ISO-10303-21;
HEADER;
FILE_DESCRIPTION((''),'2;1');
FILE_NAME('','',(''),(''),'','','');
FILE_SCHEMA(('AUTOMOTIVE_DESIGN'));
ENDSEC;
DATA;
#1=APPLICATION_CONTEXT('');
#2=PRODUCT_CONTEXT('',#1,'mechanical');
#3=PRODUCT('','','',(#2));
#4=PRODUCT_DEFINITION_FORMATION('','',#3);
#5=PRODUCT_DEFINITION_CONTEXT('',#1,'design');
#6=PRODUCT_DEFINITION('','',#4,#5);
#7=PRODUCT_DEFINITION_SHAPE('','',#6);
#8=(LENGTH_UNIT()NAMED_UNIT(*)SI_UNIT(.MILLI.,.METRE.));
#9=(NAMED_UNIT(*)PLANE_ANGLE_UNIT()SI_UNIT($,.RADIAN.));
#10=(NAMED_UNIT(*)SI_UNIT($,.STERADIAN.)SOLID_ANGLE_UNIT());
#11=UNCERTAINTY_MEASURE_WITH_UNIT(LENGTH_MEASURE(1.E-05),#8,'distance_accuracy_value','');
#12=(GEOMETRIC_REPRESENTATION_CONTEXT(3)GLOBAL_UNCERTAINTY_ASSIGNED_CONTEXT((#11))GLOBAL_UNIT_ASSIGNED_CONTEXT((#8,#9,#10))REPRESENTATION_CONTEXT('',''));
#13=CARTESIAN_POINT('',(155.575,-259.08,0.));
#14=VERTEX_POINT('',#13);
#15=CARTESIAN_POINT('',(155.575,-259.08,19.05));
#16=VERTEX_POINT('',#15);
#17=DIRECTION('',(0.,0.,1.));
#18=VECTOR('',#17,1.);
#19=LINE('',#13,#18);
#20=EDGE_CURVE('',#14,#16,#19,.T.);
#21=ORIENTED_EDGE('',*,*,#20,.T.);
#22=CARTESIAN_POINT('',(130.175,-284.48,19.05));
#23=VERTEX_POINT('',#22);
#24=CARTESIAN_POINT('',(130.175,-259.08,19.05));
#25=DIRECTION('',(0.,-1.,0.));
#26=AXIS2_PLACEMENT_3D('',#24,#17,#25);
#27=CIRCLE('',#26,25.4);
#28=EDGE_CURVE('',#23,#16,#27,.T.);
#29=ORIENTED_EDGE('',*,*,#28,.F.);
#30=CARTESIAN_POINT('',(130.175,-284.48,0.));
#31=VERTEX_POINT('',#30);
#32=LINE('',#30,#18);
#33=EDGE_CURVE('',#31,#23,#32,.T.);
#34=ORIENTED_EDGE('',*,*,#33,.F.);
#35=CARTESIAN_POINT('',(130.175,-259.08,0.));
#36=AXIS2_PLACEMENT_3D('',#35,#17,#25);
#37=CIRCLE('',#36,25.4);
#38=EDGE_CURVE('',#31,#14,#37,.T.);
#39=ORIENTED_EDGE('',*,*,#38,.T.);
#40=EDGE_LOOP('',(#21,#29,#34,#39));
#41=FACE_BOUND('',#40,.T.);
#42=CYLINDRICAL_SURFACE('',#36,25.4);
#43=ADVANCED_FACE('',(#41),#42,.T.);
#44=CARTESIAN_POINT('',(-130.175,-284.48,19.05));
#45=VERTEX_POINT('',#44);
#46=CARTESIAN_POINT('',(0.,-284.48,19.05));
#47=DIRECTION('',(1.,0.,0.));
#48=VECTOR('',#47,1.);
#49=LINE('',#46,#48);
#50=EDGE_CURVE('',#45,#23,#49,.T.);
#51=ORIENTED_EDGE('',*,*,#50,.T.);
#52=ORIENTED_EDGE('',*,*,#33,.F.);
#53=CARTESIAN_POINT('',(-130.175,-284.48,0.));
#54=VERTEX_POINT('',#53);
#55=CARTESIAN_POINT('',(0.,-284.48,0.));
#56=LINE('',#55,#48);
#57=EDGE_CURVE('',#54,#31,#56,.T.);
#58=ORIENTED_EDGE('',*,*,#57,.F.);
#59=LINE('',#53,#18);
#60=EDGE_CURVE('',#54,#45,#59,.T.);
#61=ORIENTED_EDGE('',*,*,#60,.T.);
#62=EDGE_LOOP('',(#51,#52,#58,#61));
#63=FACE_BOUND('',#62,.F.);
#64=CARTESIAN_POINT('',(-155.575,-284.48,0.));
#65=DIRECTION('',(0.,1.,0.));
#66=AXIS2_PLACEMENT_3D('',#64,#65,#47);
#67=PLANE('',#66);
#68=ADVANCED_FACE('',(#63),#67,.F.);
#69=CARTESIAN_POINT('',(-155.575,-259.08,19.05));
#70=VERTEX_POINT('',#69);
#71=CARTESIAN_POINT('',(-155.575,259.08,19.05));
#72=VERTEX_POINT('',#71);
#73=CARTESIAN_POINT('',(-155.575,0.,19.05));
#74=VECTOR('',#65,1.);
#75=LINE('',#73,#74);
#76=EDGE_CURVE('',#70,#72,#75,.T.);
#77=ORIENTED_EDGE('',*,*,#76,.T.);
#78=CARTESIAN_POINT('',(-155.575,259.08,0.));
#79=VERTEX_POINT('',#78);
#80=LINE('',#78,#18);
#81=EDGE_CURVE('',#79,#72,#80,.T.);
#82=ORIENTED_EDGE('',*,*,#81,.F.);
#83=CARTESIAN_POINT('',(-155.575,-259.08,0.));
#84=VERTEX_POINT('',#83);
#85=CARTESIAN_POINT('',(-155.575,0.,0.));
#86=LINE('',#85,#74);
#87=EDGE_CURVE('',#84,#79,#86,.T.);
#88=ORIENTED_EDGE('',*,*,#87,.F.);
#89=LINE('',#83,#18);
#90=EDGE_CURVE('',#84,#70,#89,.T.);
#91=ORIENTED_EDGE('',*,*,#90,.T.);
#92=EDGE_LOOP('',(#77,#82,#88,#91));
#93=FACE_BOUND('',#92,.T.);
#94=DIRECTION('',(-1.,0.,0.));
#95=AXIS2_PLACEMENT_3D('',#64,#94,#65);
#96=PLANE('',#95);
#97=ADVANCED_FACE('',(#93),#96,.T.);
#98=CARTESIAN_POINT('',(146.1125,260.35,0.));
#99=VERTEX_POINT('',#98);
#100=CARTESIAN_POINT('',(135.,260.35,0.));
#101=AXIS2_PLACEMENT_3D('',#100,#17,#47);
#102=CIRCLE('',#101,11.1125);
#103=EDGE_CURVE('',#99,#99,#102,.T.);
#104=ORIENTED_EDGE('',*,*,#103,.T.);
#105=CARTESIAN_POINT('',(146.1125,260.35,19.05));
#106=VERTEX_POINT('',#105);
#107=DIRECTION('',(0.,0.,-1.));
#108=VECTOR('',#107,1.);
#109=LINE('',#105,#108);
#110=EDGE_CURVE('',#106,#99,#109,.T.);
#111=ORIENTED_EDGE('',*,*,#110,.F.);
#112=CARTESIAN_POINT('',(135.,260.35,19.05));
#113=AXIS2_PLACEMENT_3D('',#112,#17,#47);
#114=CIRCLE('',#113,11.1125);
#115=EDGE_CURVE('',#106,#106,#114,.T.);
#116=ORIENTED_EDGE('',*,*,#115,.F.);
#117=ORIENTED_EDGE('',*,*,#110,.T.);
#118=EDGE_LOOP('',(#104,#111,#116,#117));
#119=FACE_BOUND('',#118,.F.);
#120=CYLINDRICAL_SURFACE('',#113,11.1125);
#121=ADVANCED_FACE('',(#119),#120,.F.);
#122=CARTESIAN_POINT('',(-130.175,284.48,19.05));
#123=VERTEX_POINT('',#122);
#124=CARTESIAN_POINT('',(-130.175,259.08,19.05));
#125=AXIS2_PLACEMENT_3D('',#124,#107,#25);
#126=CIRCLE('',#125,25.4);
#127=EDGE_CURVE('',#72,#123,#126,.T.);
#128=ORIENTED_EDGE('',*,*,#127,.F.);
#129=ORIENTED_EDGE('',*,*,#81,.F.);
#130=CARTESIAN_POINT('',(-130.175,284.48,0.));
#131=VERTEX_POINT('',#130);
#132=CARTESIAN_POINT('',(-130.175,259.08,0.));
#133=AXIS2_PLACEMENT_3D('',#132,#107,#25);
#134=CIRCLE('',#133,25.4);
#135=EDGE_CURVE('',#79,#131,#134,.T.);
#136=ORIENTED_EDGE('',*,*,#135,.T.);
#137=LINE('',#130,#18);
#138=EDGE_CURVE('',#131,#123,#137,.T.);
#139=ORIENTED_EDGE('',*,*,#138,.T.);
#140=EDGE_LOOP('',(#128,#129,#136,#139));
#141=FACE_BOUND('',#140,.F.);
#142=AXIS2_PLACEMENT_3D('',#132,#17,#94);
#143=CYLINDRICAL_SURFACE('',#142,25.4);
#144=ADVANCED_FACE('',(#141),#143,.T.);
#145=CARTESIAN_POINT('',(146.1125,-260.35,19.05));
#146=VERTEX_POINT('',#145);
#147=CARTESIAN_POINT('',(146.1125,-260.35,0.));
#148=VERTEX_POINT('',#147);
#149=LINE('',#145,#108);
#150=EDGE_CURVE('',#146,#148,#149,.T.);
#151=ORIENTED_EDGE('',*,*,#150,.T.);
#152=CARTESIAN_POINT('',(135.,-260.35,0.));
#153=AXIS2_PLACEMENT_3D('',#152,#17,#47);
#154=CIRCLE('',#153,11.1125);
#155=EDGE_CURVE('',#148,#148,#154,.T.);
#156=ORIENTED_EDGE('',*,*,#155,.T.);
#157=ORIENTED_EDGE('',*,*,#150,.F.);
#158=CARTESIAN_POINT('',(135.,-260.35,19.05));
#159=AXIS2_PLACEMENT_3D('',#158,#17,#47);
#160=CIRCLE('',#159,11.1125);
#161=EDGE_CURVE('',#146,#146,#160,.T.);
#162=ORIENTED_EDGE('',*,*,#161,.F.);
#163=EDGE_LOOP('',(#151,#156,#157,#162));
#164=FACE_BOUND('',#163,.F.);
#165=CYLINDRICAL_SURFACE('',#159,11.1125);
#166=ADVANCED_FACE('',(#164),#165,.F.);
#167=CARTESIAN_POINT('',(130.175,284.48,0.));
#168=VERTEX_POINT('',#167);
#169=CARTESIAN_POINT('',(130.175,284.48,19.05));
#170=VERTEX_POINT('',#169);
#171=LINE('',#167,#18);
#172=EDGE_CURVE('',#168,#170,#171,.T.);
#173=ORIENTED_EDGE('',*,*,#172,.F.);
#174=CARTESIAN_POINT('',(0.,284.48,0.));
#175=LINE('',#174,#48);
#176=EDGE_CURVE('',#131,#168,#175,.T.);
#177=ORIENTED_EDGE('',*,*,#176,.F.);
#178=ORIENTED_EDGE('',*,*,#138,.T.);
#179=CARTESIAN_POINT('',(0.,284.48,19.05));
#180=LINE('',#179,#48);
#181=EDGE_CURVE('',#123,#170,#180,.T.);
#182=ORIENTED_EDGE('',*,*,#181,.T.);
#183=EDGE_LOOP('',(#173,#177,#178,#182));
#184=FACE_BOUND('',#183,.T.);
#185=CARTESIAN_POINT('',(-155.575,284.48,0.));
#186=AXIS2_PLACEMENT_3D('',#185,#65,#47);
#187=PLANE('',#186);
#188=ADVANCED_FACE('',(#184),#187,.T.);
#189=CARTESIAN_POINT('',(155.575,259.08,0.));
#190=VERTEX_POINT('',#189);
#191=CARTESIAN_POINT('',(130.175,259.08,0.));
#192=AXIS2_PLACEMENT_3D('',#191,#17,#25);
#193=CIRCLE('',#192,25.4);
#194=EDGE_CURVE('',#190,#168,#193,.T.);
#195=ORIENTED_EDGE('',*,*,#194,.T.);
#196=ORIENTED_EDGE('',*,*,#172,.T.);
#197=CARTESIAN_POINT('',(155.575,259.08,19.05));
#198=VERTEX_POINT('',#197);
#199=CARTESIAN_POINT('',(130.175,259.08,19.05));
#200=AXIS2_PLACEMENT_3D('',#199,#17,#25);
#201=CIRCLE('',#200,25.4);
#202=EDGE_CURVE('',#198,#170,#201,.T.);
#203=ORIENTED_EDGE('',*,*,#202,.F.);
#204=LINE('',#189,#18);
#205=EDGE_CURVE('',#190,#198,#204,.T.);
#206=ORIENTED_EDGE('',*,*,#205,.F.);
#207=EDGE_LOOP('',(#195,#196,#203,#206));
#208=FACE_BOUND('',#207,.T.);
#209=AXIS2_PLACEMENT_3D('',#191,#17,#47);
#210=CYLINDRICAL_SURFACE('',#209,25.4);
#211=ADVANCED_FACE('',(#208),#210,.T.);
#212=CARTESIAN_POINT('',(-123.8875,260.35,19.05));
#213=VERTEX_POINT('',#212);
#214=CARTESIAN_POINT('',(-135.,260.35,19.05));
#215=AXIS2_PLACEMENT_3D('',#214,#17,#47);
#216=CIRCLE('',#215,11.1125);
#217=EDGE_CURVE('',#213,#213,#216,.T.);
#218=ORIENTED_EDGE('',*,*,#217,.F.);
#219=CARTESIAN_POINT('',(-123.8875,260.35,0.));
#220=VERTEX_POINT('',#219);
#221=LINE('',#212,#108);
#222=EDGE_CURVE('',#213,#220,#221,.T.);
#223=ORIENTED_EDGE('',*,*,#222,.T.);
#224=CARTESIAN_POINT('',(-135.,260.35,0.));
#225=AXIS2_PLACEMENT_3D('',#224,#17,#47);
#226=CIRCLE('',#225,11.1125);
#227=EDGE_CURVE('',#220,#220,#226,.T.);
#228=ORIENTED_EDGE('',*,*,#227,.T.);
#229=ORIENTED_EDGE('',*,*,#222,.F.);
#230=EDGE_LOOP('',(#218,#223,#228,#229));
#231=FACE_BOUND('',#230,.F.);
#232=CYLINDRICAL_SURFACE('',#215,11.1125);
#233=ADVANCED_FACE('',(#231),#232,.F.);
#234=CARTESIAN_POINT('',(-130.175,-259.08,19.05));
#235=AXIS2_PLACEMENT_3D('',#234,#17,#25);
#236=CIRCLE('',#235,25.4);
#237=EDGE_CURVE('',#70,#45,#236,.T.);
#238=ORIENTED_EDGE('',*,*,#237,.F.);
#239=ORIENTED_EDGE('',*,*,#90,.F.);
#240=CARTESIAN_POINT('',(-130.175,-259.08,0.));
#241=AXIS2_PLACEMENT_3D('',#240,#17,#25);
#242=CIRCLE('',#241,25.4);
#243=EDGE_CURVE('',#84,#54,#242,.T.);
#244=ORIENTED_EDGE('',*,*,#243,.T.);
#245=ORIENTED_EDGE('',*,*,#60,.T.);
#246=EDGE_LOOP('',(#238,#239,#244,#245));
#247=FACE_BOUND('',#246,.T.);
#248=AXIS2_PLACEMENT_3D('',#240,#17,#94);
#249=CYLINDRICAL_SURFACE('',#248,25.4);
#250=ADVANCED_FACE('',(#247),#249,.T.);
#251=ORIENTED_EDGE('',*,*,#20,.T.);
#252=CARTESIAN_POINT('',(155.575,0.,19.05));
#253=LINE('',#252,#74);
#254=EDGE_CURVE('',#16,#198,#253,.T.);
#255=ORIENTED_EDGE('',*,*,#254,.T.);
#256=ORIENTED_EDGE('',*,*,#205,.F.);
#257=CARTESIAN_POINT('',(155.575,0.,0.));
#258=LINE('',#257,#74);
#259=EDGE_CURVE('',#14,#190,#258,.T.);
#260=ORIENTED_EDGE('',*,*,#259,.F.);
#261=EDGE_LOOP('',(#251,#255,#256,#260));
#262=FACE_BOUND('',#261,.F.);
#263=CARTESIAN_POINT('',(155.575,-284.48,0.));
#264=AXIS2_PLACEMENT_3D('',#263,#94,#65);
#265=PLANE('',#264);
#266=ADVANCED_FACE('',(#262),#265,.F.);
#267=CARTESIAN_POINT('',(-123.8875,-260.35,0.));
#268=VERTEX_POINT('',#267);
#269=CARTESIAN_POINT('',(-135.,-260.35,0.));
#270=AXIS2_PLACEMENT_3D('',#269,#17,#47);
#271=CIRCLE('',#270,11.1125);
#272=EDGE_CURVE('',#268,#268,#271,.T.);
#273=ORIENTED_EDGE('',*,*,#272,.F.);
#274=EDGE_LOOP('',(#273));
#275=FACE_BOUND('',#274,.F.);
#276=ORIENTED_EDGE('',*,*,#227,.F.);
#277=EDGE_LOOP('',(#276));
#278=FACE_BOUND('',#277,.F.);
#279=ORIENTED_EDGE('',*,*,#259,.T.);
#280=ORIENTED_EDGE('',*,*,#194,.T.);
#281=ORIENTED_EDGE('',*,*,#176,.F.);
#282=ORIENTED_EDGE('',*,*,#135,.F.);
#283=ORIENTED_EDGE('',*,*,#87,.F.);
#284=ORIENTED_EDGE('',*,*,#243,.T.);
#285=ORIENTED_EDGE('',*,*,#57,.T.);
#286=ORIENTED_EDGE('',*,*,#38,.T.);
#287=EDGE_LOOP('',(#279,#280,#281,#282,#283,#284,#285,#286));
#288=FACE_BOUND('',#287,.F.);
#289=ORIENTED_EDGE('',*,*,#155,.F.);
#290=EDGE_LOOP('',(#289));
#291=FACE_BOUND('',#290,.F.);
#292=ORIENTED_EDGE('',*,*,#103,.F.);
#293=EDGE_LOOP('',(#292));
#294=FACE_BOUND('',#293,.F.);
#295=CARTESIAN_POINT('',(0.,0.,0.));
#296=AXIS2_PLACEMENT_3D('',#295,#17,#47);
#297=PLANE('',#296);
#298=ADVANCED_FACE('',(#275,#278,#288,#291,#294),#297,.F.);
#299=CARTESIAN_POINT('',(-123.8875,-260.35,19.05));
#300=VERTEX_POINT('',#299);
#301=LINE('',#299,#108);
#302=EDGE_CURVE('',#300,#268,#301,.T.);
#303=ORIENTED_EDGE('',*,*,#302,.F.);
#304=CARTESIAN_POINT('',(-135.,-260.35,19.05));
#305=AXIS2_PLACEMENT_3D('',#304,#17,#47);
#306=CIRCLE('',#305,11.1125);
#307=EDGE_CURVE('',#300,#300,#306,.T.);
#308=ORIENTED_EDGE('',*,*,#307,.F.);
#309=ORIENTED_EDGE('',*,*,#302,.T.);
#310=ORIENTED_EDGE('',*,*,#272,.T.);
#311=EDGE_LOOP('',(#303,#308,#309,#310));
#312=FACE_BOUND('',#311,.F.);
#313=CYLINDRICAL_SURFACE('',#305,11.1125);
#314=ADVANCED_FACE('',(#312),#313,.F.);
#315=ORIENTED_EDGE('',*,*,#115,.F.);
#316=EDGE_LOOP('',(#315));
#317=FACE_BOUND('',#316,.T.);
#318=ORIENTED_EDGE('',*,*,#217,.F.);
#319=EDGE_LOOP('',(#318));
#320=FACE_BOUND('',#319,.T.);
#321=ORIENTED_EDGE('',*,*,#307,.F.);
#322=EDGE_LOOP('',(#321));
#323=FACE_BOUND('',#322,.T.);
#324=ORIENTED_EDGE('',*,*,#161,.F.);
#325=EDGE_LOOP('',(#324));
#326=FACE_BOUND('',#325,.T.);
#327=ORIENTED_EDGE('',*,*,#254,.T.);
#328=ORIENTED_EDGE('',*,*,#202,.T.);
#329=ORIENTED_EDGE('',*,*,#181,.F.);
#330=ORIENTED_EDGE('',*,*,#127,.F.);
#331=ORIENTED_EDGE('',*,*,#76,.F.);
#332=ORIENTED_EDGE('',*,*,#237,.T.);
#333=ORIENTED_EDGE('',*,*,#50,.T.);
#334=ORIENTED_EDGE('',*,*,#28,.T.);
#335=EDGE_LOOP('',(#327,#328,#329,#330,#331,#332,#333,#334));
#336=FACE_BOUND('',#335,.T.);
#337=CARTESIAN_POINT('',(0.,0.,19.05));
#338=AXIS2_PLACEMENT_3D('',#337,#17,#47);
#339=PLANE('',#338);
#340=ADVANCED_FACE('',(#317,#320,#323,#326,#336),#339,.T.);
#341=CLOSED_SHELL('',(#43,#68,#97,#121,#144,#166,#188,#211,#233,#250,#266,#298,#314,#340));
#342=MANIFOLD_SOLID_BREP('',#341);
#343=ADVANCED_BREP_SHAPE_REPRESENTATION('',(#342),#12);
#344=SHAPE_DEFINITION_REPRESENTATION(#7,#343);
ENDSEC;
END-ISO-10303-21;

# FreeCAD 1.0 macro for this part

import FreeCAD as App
import Part
import Sketcher

V = App.Vector
Q = App.Units.Quantity


def edges_at(feature, points):
    """Names of the edges that pass closest to the given points."""
    edges = feature.Shape.Edges
    near = lambda p: min(range(len(edges)), key=lambda i: edges[i].distToShape(Part.Vertex(*p))[0])
    return sorted({f"Edge{near(p) + 1}" for p in points})


def add_polygon(sketch, points):
    """Adds a closed chain of lines whose ends are joined by coincident constraints."""
    first, n = sketch.GeometryCount, len(points)
    for a, b in zip(points, points[1:] + points[:1]):
        sketch.addGeometry(Part.LineSegment(App.Vector(*a, 0), App.Vector(*b, 0)), False)
    for i in range(n):
        sketch.addConstraint(Sketcher.Constraint("Coincident", first + i, 2, first + (i + 1) % n, 1))

doc = App.newDocument("Part")
body = doc.addObject("PartDesign::Body", "Body")

sketch1 = doc.addObject("Sketcher::SketchObject", "Sketch")
body.addObject(sketch1)
sketch1.AttachmentSupport = (doc.XY_Plane, [""])
sketch1.MapMode = "FlatFace"
add_polygon(sketch1, [(-155.575, 284.48), (-155.575, -284.48), (155.575, -284.48), (155.575, 284.48)])
sketch1.addConstraint([
    Sketcher.Constraint("Vertical", 0),
    Sketcher.Constraint("Horizontal", 1),
    Sketcher.Constraint("Vertical", 2),
    Sketcher.Constraint("Horizontal", 3),
    Sketcher.Constraint("Symmetric", 0, 2, 2, 2, -1, 1),
    Sketcher.Constraint("DistanceY", 0, 2, 0, 1, Q("22.4 in")),
    Sketcher.Constraint("DistanceX", 1, 1, 1, 2, Q("12.25 in")),
])
pad1 = doc.addObject("PartDesign::Pad", "Pad")
body.addObject(pad1)
pad1.Profile = sketch1
pad1.Length = Q("0.75 in")
doc.recompute()

fillet = doc.addObject("PartDesign::Fillet", "Fillet")
body.addObject(fillet)
fillet.Base = (pad1, edges_at(pad1, [
    (155.575, -284.48, 9.525),
    (-155.575, -284.48, 9.525),
    (-155.575, 284.48, 9.525),
    (155.575, 284.48, 9.525),
]))
fillet.Radius = Q("1 in")

sketch2 = doc.addObject("Sketcher::SketchObject", "Sketch001")
body.addObject(sketch2)
sketch2.AttachmentSupport = (doc.XY_Plane, [""])
sketch2.MapMode = "FlatFace"
sketch2.AttachmentOffset = App.Placement(V(0, 0, 0.75 * 25.4), App.Rotation())
sketch2.addGeometry([
    Part.Circle(V(-135, 260.35, 0), V(0, 0, 1), 11.1125),
    Part.Circle(V(135, 260.35, 0), V(0, 0, 1), 11.1125),
    Part.Circle(V(135, -260.35, 0), V(0, 0, 1), 11.1125),
    Part.Circle(V(-135, -260.35, 0), V(0, 0, 1), 11.1125),
], False)
sketch2.addConstraint([
    Sketcher.Constraint("Equal", 0, 1),
    Sketcher.Constraint("Equal", 1, 2),
    Sketcher.Constraint("Equal", 2, 3),
    Sketcher.Constraint("Symmetric", 0, 3, 2, 3, -1, 1),
    Sketcher.Constraint("Symmetric", 1, 3, 3, 3, -1, 1),
    Sketcher.Constraint("Symmetric", 0, 3, 1, 3, -2),
    Sketcher.Constraint("Diameter", 0, Q("0.875 in")),
    Sketcher.Constraint("DistanceY", 2, 3, 1, 3, Q("20.5 in")),
    Sketcher.Constraint("DistanceX", 0, 3, -1, 1, Q("135 mm")),
])
pocket1 = doc.addObject("PartDesign::Pocket", "Pocket")
body.addObject(pocket1)
pocket1.Profile = sketch2
pocket1.Type = "ThroughAll"

doc.recompute()
